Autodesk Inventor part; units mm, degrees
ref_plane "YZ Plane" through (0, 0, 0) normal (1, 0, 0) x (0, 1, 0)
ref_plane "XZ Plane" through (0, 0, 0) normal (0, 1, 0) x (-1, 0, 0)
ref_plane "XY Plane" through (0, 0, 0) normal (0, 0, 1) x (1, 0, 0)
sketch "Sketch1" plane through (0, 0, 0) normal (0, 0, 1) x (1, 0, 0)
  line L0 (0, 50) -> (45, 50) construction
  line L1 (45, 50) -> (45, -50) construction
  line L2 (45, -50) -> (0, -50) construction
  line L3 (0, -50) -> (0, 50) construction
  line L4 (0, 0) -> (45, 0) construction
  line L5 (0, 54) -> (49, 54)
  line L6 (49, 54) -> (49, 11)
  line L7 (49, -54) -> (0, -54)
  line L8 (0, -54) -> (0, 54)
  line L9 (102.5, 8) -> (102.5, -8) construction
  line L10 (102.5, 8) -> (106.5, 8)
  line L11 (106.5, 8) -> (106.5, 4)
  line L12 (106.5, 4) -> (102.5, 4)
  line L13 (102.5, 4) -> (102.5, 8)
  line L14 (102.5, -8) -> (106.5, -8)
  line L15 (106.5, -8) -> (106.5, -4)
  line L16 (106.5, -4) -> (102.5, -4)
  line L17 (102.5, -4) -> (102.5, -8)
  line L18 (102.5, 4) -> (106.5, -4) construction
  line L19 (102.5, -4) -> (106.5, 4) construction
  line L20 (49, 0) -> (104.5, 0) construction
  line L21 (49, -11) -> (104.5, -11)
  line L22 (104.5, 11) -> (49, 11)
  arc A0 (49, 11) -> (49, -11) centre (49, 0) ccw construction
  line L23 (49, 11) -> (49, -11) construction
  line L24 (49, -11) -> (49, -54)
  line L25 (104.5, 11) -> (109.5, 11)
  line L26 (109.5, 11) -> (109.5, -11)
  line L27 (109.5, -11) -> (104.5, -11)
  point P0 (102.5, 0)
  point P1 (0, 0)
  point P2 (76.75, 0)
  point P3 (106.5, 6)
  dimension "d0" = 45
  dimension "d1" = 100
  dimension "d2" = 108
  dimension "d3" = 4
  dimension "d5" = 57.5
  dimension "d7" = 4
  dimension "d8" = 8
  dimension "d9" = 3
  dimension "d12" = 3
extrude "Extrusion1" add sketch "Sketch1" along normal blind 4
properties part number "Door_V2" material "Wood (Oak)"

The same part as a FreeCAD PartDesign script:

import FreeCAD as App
import Part
import Sketcher
from FreeCAD import Vector
Q = App.Units.Quantity


def add_polygon(sketch, points):
    """Adds a closed chain of lines whose ends are joined by coincident constraints."""
    first, n = sketch.GeometryCount, len(points)
    for a, b in zip(points, points[1:] + points[:1]):
        sketch.addGeometry(Part.LineSegment(App.Vector(*a, 0), App.Vector(*b, 0)), False)
    for i in range(n):
        sketch.addConstraint(Sketcher.Constraint("Coincident", first + i, 2, first + (i + 1) % n, 1))

doc = App.newDocument("Part")
body = doc.addObject("PartDesign::Body", "Body")

# Sketch on XY plane
sketch1 = body.newObject("Sketcher::SketchObject", "Sketch")
sketch1.AttachmentSupport = (doc.getObject("XY_Plane"), [""])
sketch1.MapMode = "FlatFace"
add_polygon(sketch1, [(49, 54), (0, 54), (0, -54), (49, -54), (49, -11), (109.5, -11), (109.5, 11), (49, 11)])  # lines 0-7
add_polygon(sketch1, [(106.5, -8), (102.5, -8), (102.5, -4), (106.5, -4)])  # lines 8-11
add_polygon(sketch1, [(102.5, 4), (102.5, 8), (106.5, 8), (106.5, 4)])  # lines 12-15
sketch1.addConstraint(Sketcher.Constraint("Horizontal", 0))
sketch1.addConstraint(Sketcher.Constraint("Vertical", 1))
sketch1.addConstraint(Sketcher.Constraint("Horizontal", 2))
sketch1.addConstraint(Sketcher.Constraint("Vertical", 3))
sketch1.addConstraint(Sketcher.Constraint("Horizontal", 4))
sketch1.addConstraint(Sketcher.Constraint("Vertical", 5))
sketch1.addConstraint(Sketcher.Constraint("Horizontal", 6))
sketch1.addConstraint(Sketcher.Constraint("Vertical", 7))
sketch1.addConstraint(Sketcher.Constraint("Horizontal", 8))
sketch1.addConstraint(Sketcher.Constraint("Vertical", 9))
sketch1.addConstraint(Sketcher.Constraint("Horizontal", 10))
sketch1.addConstraint(Sketcher.Constraint("Vertical", 11))
sketch1.addConstraint(Sketcher.Constraint("Vertical", 12))
sketch1.addConstraint(Sketcher.Constraint("Horizontal", 13))
sketch1.addConstraint(Sketcher.Constraint("Vertical", 14))
sketch1.addConstraint(Sketcher.Constraint("Horizontal", 15))
sketch1.addConstraint(Sketcher.Constraint("Symmetric", 0, 2, 1, 2, -1, 1))
sketch1.addConstraint(Sketcher.Constraint("Symmetric", 3, 2, 6, 2, -1))
sketch1.addConstraint(Sketcher.Constraint("Symmetric", 8, 2, 12, 2, -1))
sketch1.addConstraint(Sketcher.Constraint("Symmetric", 10, 2, 14, 2, -1))
sketch1.addConstraint(Sketcher.Constraint("Equal", 15, 9))
sketch1.addConstraint(Sketcher.Constraint("DistanceX", 8, 2, 8, 1, Q("4 mm")))
sketch1.addConstraint(Sketcher.Constraint("DistanceY", 1, 2, 1, 1, Q("108 mm")))
sketch1.addConstraint(Sketcher.Constraint("DistanceY", 8, 2, -1, 1, Q("8 mm")))
sketch1.addConstraint(Sketcher.Constraint("DistanceY", 4, 2, 8, 2, Q("3 mm")))
sketch1.addConstraint(Sketcher.Constraint("DistanceX", 10, 2, 4, 2, Q("3 mm")))
sketch1.addConstraint(Sketcher.Constraint("DistanceX", 3, 2, 10, 2, Q("57.5 mm")))
sketch1.addConstraint(Sketcher.Constraint("DistanceX", 0, 2, 0, 1, Q("49 mm")))
pad1 = body.newObject("PartDesign::Pad", "Pad")
pad1.Profile = sketch1
pad1.Length = 4

doc.recompute()
